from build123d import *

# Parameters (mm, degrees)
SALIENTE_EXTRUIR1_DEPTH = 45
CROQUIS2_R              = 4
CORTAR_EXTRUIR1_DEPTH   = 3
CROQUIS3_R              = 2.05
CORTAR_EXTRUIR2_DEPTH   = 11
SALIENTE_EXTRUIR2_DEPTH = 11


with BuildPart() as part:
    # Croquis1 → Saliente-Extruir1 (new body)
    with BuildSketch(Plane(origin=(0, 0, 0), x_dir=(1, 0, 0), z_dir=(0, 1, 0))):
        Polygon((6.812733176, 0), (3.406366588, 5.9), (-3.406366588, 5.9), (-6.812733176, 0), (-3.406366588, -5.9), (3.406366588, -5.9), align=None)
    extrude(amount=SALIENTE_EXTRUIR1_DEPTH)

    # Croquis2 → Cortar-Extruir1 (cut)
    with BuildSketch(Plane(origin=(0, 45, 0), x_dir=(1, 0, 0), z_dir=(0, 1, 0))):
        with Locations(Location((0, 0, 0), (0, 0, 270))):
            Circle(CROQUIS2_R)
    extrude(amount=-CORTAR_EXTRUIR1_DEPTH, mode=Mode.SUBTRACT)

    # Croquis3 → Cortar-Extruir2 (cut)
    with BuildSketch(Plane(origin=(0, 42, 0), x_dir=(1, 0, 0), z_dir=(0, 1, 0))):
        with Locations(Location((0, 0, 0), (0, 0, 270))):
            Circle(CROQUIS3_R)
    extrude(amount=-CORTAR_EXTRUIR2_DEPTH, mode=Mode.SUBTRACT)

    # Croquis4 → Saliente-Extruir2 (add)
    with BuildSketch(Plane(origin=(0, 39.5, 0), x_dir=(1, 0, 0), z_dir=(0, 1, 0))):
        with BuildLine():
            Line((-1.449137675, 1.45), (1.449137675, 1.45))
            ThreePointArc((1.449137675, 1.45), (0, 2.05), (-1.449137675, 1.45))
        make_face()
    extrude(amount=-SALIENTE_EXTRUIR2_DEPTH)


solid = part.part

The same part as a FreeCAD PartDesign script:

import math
import FreeCAD as App
import Part
import Sketcher

V = App.Vector
Q = App.Units.Quantity


def add_polygon(sketch, points):
    """Adds a closed chain of lines whose ends are joined by coincident constraints."""
    first, n = sketch.GeometryCount, len(points)
    for a, b in zip(points, points[1:] + points[:1]):
        sketch.addGeometry(Part.LineSegment(App.Vector(*a, 0), App.Vector(*b, 0)), False)
    for i in range(n):
        sketch.addConstraint(Sketcher.Constraint("Coincident", first + i, 2, first + (i + 1) % n, 1))

doc = App.newDocument("Part")
body = doc.addObject("PartDesign::Body", "Body")

sketch1 = doc.addObject("Sketcher::SketchObject", "Sketch")
body.addObject(sketch1)
sketch1.AttachmentSupport = (doc.XZ_Plane, [""])
sketch1.MapMode = "FlatFace"
add_polygon(sketch1, [(7, 0), (3, -6), (-3, -6), (-7, 0), (-3, 6), (3, 6)])
sketch1.addConstraint([
    Sketcher.Constraint("Horizontal", 1),
    Sketcher.Constraint("Horizontal", 4),
    Sketcher.Constraint("Symmetric", 0, 2, 3, 2, -1, 1),
    Sketcher.Constraint("Symmetric", 2, 2, 5, 2, -1, 1),
    Sketcher.Constraint("PointOnObject", 2, 2, -1),
    Sketcher.Constraint("Parallel", 2, 5),
    Sketcher.Constraint("Vertical", 1, 2, 3, 2),
    Sketcher.Constraint("Angle", 0, Q("-120 deg")),
    Sketcher.Constraint("DistanceY", 0, 2, -1, 1, 5.9),
    Sketcher.Constraint("DistanceX", 2, 2, 0, 2, 10.2191),
])
pad1 = doc.addObject("PartDesign::Pad", "Pad")
body.addObject(pad1)
pad1.Profile = sketch1
pad1.Length = 45
pad1.Reversed = True

sketch2 = doc.addObject("Sketcher::SketchObject", "Sketch001")
body.addObject(sketch2)
sketch2.AttachmentSupport = (doc.XZ_Plane, [""])
sketch2.MapMode = "FlatFace"
sketch2.AttachmentOffset = App.Placement(V(0, 0, -45), App.Rotation())
sketch2.addGeometry(Part.Circle(V(0, 0, 0), V(0, 0, 1), 4), False)
sketch2.addConstraint([
    Sketcher.Constraint("Coincident", 0, 3, -1, 1),
    Sketcher.Constraint("Diameter", 0, 8.0),
])
pocket1 = doc.addObject("PartDesign::Pocket", "Pocket")
body.addObject(pocket1)
pocket1.Profile = sketch2
pocket1.Length = 3
pocket1.Reversed = True

sketch3 = doc.addObject("Sketcher::SketchObject", "Sketch002")
body.addObject(sketch3)
sketch3.AttachmentSupport = (doc.XZ_Plane, [""])
sketch3.MapMode = "FlatFace"
sketch3.AttachmentOffset = App.Placement(V(0, 0, -42), App.Rotation())
sketch3.addGeometry(Part.Circle(V(0, 0, 0), V(0, 0, 1), 2), False)
sketch3.addConstraint([
    Sketcher.Constraint("Coincident", 0, 3, -1, 1),
    Sketcher.Constraint("Diameter", 0, 4.1),
])
pocket2 = doc.addObject("PartDesign::Pocket", "Pocket001")
body.addObject(pocket2)
pocket2.Profile = sketch3
pocket2.Length = 11
pocket2.Reversed = True

sketch4 = doc.addObject("Sketcher::SketchObject", "Sketch003")
body.addObject(sketch4)
sketch4.AttachmentSupport = (doc.XZ_Plane, [""])
sketch4.MapMode = "FlatFace"
sketch4.AttachmentOffset = App.Placement(V(0, 0, -39.5), App.Rotation())
sketch4.addGeometry([
    Part.LineSegment(V(-1.4, -1.4, 0), V(1.4, -1.4, 0)),
    Part.ArcOfCircle(Part.Circle(V(0, 0, 0), V(0, 0, 1), 2.1), math.radians(-135), math.radians(-45)),
], False)
sketch4.addConstraint([
    Sketcher.Constraint("Coincident", 0, 1, 1, 1),
    Sketcher.Constraint("Coincident", 1, 2, 0, 2),
    Sketcher.Constraint("Horizontal", 0),
    Sketcher.Constraint("Coincident", 1, 3, -1, 1),
    Sketcher.Constraint("Radius", 1, 2.05),
    Sketcher.Constraint("DistanceY", 0, 1, -1, 1, 1.45),
])
pad2 = doc.addObject("PartDesign::Pad", "Pad001")
body.addObject(pad2)
pad2.Profile = sketch4
pad2.Length = 11

doc.recompute()
